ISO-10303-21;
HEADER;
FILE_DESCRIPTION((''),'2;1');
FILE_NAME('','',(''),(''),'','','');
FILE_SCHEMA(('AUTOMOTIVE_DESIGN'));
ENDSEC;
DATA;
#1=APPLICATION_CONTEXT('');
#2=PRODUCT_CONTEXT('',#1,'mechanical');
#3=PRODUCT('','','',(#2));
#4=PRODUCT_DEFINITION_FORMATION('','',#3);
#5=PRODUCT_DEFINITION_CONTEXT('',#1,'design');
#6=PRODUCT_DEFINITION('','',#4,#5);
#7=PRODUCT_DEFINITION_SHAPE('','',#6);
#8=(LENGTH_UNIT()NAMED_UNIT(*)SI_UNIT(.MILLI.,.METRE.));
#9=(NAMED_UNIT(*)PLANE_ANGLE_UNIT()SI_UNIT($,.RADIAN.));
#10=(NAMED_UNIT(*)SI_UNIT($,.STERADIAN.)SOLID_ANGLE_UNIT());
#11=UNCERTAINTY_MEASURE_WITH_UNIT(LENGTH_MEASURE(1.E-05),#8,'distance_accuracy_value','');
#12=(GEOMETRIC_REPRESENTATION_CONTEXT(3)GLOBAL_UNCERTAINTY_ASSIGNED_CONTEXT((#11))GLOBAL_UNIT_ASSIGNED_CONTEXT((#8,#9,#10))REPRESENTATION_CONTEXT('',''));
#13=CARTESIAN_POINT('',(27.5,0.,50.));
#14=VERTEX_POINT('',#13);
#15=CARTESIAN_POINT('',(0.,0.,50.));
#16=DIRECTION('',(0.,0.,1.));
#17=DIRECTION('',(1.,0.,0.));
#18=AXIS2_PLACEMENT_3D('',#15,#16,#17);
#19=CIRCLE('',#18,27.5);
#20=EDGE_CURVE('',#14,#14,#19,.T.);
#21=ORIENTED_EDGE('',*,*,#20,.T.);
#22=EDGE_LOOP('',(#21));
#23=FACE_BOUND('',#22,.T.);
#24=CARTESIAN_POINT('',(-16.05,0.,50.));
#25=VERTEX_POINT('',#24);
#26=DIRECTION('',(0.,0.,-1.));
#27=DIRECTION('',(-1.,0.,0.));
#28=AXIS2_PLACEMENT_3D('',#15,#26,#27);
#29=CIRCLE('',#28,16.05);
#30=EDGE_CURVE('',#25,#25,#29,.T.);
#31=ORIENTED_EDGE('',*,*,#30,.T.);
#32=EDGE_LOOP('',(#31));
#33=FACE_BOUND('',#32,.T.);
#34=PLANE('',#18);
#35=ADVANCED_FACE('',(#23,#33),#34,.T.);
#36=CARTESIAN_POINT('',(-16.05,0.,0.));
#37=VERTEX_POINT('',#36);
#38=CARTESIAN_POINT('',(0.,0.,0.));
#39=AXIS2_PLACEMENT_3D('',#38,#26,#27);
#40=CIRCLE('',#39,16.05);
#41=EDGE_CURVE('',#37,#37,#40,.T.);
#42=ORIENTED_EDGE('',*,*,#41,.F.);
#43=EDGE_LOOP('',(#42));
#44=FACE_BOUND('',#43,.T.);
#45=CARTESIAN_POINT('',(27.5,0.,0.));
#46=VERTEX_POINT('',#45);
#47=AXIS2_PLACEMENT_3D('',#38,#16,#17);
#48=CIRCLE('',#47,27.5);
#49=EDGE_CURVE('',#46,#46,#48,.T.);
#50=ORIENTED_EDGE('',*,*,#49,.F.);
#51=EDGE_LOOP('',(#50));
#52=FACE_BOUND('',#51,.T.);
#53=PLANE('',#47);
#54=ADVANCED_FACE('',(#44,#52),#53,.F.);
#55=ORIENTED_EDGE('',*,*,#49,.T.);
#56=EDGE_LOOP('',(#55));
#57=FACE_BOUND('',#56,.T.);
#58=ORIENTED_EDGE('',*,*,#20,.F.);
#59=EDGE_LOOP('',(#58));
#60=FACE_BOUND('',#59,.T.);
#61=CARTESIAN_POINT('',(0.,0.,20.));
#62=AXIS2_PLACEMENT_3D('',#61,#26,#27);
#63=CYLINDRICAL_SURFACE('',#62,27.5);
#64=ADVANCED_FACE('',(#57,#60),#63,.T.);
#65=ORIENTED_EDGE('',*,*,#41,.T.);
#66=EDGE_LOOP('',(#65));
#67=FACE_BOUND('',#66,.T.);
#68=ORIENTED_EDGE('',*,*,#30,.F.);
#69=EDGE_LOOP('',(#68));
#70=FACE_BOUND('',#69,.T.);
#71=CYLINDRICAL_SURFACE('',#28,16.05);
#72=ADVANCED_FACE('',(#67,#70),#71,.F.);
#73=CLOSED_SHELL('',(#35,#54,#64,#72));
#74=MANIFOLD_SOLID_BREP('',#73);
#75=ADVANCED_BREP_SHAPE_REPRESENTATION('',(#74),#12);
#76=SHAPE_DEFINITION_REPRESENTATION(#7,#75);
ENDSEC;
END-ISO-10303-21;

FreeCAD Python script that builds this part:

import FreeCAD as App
import Part
import Sketcher
Q = App.Units.Quantity

doc = App.newDocument("Part")
body = doc.addObject("PartDesign::Body", "Body")

# Sketch on XY plane
sketch1 = body.newObject("Sketcher::SketchObject", "Sketch")
sketch1.AttachmentSupport = (doc.getObject("XY_Plane"), [""])
sketch1.MapMode = "FlatFace"
sketch1.addGeometry(Part.Circle(App.Vector(0, 0, 0), App.Vector(0, 0, 1), 28), False)
sketch1.addConstraint(Sketcher.Constraint("Coincident", 0, 3, -1, 1))
sketch1.addConstraint(Sketcher.Constraint("Diameter", 0, Q("55 mm")))
pad1 = body.newObject("PartDesign::Pad", "Pad")
pad1.Profile = sketch1
pad1.Length = 20

# Sketch on XY plane
sketch2 = body.newObject("Sketcher::SketchObject", "Sketch001")
sketch2.AttachmentSupport = (doc.getObject("XY_Plane"), [""])
sketch2.MapMode = "FlatFace"
sketch2.addGeometry(Part.Circle(App.Vector(0, 0, 0), App.Vector(0, 0, 1), 28), False)
sketch2.addConstraint(Sketcher.Constraint("Coincident", 0, 3, -1, 1))
sketch2.addConstraint(Sketcher.Constraint("Diameter", 0, Q("55 mm")))
pad2 = body.newObject("PartDesign::Pad", "Pad001")
pad2.Profile = sketch2
pad2.Length = 50

# Sketch on XY plane
sketch3 = body.newObject("Sketcher::SketchObject", "Sketch002")
sketch3.AttachmentSupport = (doc.getObject("XY_Plane"), [""])
sketch3.MapMode = "FlatFace"
sketch3.addGeometry(Part.Circle(App.Vector(0, 0, 0), App.Vector(0, 0, 1), 16), False)
sketch3.addConstraint(Sketcher.Constraint("Coincident", 0, 3, -1, 1))
sketch3.addConstraint(Sketcher.Constraint("Diameter", 0, Q("32.1 mm")))
pocket1 = body.newObject("PartDesign::Pocket", "Pocket")
pocket1.Profile = sketch3
pocket1.Type = "ThroughAll"
pocket1.Reversed = True

doc.recompute()
